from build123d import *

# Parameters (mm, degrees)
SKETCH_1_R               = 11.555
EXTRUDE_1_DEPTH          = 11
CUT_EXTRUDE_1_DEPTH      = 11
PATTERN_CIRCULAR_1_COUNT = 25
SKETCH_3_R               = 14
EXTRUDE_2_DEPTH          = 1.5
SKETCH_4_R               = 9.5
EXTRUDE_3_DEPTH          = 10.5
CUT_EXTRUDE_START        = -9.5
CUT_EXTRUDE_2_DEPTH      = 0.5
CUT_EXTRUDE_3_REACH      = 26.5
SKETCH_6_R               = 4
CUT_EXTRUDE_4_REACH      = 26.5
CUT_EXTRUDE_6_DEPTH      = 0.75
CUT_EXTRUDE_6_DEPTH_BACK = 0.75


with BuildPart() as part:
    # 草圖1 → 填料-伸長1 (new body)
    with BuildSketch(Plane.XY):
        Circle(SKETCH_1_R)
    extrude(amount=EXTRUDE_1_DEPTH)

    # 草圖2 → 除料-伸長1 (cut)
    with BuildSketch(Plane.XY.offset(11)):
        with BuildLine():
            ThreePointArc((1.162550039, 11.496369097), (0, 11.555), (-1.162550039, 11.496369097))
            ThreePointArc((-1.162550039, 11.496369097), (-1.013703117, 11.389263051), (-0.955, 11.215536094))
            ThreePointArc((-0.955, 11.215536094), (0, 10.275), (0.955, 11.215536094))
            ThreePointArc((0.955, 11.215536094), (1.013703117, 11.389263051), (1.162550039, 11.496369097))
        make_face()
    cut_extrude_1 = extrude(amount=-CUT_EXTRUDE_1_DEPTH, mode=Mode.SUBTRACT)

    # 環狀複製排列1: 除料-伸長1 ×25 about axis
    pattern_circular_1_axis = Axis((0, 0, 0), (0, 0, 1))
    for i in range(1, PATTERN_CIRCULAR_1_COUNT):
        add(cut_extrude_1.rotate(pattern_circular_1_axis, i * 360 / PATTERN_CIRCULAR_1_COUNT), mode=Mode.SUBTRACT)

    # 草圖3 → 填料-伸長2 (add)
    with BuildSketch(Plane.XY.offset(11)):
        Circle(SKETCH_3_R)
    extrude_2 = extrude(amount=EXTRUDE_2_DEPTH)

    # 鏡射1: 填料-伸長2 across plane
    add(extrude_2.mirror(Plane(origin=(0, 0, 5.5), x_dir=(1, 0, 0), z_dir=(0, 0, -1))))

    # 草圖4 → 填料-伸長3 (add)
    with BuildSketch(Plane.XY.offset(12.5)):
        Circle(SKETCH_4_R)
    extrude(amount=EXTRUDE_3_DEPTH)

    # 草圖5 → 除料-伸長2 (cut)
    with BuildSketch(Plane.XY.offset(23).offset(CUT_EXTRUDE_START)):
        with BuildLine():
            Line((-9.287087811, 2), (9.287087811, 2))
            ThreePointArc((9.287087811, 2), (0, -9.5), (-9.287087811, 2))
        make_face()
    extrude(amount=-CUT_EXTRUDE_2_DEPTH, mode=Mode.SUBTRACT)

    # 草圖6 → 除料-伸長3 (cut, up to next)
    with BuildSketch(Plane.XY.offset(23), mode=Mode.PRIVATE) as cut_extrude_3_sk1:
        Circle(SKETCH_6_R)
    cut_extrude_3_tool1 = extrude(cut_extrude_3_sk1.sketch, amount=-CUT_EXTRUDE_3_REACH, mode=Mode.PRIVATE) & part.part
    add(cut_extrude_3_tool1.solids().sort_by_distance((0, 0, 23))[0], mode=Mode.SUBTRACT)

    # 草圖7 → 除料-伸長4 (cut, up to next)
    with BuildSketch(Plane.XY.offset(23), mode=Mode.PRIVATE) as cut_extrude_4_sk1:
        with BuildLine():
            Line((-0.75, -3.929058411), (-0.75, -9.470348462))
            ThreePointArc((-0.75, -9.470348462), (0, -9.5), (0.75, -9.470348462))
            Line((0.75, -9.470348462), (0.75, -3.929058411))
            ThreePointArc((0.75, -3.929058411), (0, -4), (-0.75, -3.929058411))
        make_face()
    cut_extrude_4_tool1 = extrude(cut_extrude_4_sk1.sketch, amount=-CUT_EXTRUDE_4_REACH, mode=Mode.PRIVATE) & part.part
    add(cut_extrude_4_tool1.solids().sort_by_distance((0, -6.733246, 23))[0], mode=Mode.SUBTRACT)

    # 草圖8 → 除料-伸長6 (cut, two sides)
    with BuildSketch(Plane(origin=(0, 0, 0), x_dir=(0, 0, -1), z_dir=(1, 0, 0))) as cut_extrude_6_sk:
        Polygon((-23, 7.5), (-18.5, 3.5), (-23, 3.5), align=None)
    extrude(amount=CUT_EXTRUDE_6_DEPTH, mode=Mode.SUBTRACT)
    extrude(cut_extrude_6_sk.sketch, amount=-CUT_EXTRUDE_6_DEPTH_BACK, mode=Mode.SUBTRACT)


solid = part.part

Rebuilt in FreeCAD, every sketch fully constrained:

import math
import FreeCAD as App
import Part
import Sketcher
from FreeCAD import Vector
Q = App.Units.Quantity

doc = App.newDocument("Part")
body = doc.addObject("PartDesign::Body", "Body")

# Sketch on XY plane
sketch1 = body.newObject("Sketcher::SketchObject", "Sketch")
sketch1.AttachmentSupport = (doc.getObject("XY_Plane"), [""])
sketch1.MapMode = "FlatFace"
sketch1.addGeometry(Part.Circle(Vector(0, 0, 0), Vector(0, 0, 1), 12), False)
sketch1.addConstraint(Sketcher.Constraint("Coincident", 0, 3, -1, 1))
sketch1.addConstraint(Sketcher.Constraint("Diameter", 0, Q("23.11 mm")))
pad1 = body.newObject("PartDesign::Pad", "Pad")
pad1.Profile = sketch1
pad1.Length = 11

# Sketch on XY plane
sketch2 = body.newObject("Sketcher::SketchObject", "Sketch001")
sketch2.AttachmentSupport = (doc.getObject("XY_Plane"), [""])
sketch2.MapMode = "FlatFace"
sketch2.AttachmentOffset = App.Placement(Vector(0, 0, 11), App.Rotation())
sketch2.addGeometry(Part.ArcOfCircle(Part.Circle(Vector(0, 0, 0), Vector(0, 0, 1), 11.56), math.radians(84.23), math.radians(95.77)), False)
sketch2.addGeometry(Part.ArcOfCircle(Part.Circle(Vector(-1.25, 11.21, 0), Vector(0, 0, 1), 0.3), math.radians(1), math.radians(72)), False)
sketch2.addGeometry(Part.ArcOfCircle(Part.Circle(Vector(0, 11.23, 0), Vector(0, 0, 1), 0.96), math.radians(-179), math.radians(-1)), False)
sketch2.addGeometry(Part.ArcOfCircle(Part.Circle(Vector(1.25, 11.21, 0), Vector(0, 0, 1), 0.3), math.radians(108), math.radians(179)), False)
sketch2.addConstraint(Sketcher.Constraint("Coincident", 0, 2, 1, 2))
sketch2.addConstraint(Sketcher.Constraint("Tangent", 1, 1, 2, 1))
sketch2.addConstraint(Sketcher.Constraint("Tangent", 2, 2, 3, 2))
sketch2.addConstraint(Sketcher.Constraint("Coincident", 3, 1, 0, 1))
sketch2.addConstraint(Sketcher.Constraint("Coincident", 0, 3, -1, 1))
sketch2.addConstraint(Sketcher.Constraint("Equal", 1, 3))
sketch2.addConstraint(Sketcher.Constraint("Symmetric", 1, 3, 3, 3, -2))
sketch2.addConstraint(Sketcher.Constraint("Radius", 1, Q("0.3 mm")))
sketch2.addConstraint(Sketcher.Constraint("Radius", 0, Q("11.555 mm")))
sketch2.addConstraint(Sketcher.Constraint("Radius", 2, Q("0.955111 mm")))
sketch2.addConstraint(Sketcher.Constraint("DistanceX", 1, 1, 2, 2, Q("1.91 mm")))
sketch2.addConstraint(Sketcher.Constraint("DistanceX", 0, 2, 3, 1, Q("2.3251 mm")))
pocket1 = body.newObject("PartDesign::Pocket", "Pocket")
pocket1.Profile = sketch2
pocket1.Length = 11
doc.recompute()

polarpattern = body.newObject("PartDesign::PolarPattern", "PolarPattern")
polarpattern.Originals = [pocket1]
polarpattern.Axis = (doc.getObject("Z_Axis"), [""])
polarpattern.Angle = 360
polarpattern.Occurrences = 25
body.Tip = polarpattern

# Sketch on XY plane
sketch3 = body.newObject("Sketcher::SketchObject", "Sketch002")
sketch3.AttachmentSupport = (doc.getObject("XY_Plane"), [""])
sketch3.MapMode = "FlatFace"
sketch3.AttachmentOffset = App.Placement(Vector(0, 0, 11), App.Rotation())
sketch3.addGeometry(Part.Circle(Vector(0, 0, 0), Vector(0, 0, 1), 14), False)
sketch3.addConstraint(Sketcher.Constraint("Coincident", 0, 3, -1, 1))
sketch3.addConstraint(Sketcher.Constraint("Diameter", 0, Q("28 mm")))
pad2 = body.newObject("PartDesign::Pad", "Pad001")
pad2.Profile = sketch3
pad2.Length = 1.5
doc.recompute()

datumplane = body.newObject("PartDesign::Plane", "DatumPlane")
datumplane.AttachmentSupport = (doc.getObject("XY_Plane"), [""])
datumplane.MapMode = "FlatFace"
datumplane.AttachmentOffset = App.Placement(Vector(0, 0, 5.5), App.Rotation())
mirrored = body.newObject("PartDesign::Mirrored", "Mirrored")
mirrored.Originals = [pad2]
mirrored.MirrorPlane = (datumplane, [""])
body.Tip = mirrored

# Sketch on XY plane
sketch4 = body.newObject("Sketcher::SketchObject", "Sketch003")
sketch4.AttachmentSupport = (doc.getObject("XY_Plane"), [""])
sketch4.MapMode = "FlatFace"
sketch4.AttachmentOffset = App.Placement(Vector(0, 0, 12.5), App.Rotation())
sketch4.addGeometry(Part.Circle(Vector(0, 0, 0), Vector(0, 0, 1), 10), False)
sketch4.addConstraint(Sketcher.Constraint("Coincident", 0, 3, -1, 1))
sketch4.addConstraint(Sketcher.Constraint("Diameter", 0, Q("19 mm")))
pad3 = body.newObject("PartDesign::Pad", "Pad002")
pad3.Profile = sketch4
pad3.Length = 10.5

# Sketch on XY plane
sketch5 = body.newObject("Sketcher::SketchObject", "Sketch004")
sketch5.AttachmentSupport = (doc.getObject("XY_Plane"), [""])
sketch5.MapMode = "FlatFace"
sketch5.AttachmentOffset = App.Placement(Vector(0, 0, 13.5), App.Rotation())
sketch5.addGeometry(Part.LineSegment(Vector(9, 2, 0), Vector(-9, 2, 0)), False)
sketch5.addGeometry(Part.ArcOfCircle(Part.Circle(Vector(0, 0, 0), Vector(0, 0, 1), 10), math.radians(168), math.radians(372)), False)
sketch5.addConstraint(Sketcher.Constraint("Coincident", 0, 1, 1, 2))
sketch5.addConstraint(Sketcher.Constraint("Coincident", 1, 1, 0, 2))
sketch5.addConstraint(Sketcher.Constraint("Horizontal", 0))
sketch5.addConstraint(Sketcher.Constraint("Coincident", 1, 3, -1, 1))
sketch5.addConstraint(Sketcher.Constraint("Radius", 1, Q("9.5 mm")))
sketch5.addConstraint(Sketcher.Constraint("DistanceY", -1, 1, 0, 1, Q("2 mm")))
pocket2 = body.newObject("PartDesign::Pocket", "Pocket001")
pocket2.Profile = sketch5
pocket2.Length = 0.5

# Sketch on XY plane
sketch6 = body.newObject("Sketcher::SketchObject", "Sketch005")
sketch6.AttachmentSupport = (doc.getObject("XY_Plane"), [""])
sketch6.MapMode = "FlatFace"
sketch6.AttachmentOffset = App.Placement(Vector(0, 0, 23), App.Rotation())
sketch6.addGeometry(Part.Circle(Vector(0, 0, 0), Vector(0, 0, 1), 4), False)
sketch6.addConstraint(Sketcher.Constraint("Coincident", 0, 3, -1, 1))
sketch6.addConstraint(Sketcher.Constraint("Diameter", 0, Q("8 mm")))
pocket3 = body.newObject("PartDesign::Pocket", "Pocket002")
pocket3.Profile = sketch6
pocket3.Length = 24.5

# Sketch on XY plane
sketch7 = body.newObject("Sketcher::SketchObject", "Sketch006")
sketch7.AttachmentSupport = (doc.getObject("XY_Plane"), [""])
sketch7.MapMode = "FlatFace"
sketch7.AttachmentOffset = App.Placement(Vector(0, 0, 23), App.Rotation())
sketch7.addGeometry(Part.LineSegment(Vector(-0.8, -3.9, 0), Vector(-0.8, -9.5, 0)), False)
sketch7.addGeometry(Part.ArcOfCircle(Part.Circle(Vector(0, 0, 0), Vector(0, 0, 1), 9.5), math.radians(-94.53), math.radians(-85.47)), False)
sketch7.addGeometry(Part.LineSegment(Vector(0.8, -9.5, 0), Vector(0.8, -3.9, 0)), False)
sketch7.addGeometry(Part.ArcOfCircle(Part.Circle(Vector(0, 0, 0), Vector(0, 0, 1), 4), math.radians(-101), math.radians(-79)), False)
sketch7.addConstraint(Sketcher.Constraint("Coincident", 0, 2, 1, 1))
sketch7.addConstraint(Sketcher.Constraint("Coincident", 1, 2, 2, 1))
sketch7.addConstraint(Sketcher.Constraint("Coincident", 2, 2, 3, 2))
sketch7.addConstraint(Sketcher.Constraint("Coincident", 3, 1, 0, 1))
sketch7.addConstraint(Sketcher.Constraint("Vertical", 0))
sketch7.addConstraint(Sketcher.Constraint("Vertical", 2))
sketch7.addConstraint(Sketcher.Constraint("Coincident", 1, 3, -1, 1))
sketch7.addConstraint(Sketcher.Constraint("Coincident", 3, 3, -1, 1))
sketch7.addConstraint(Sketcher.Constraint("Horizontal", 0, 2, 1, 2))
sketch7.addConstraint(Sketcher.Constraint("Radius", 3, Q("4 mm")))
sketch7.addConstraint(Sketcher.Constraint("Radius", 1, Q("9.5 mm")))
sketch7.addConstraint(Sketcher.Constraint("DistanceX", 0, 2, 1, 2, Q("1.5 mm")))
pocket4 = body.newObject("PartDesign::Pocket", "Pocket003")
pocket4.Profile = sketch7
pocket4.Type = "UpToFirst"

# Sketch on YZ plane
sketch8 = body.newObject("Sketcher::SketchObject", "Sketch007")
sketch8.AttachmentSupport = (doc.getObject("YZ_Plane"), [""])
sketch8.MapMode = "FlatFace"
sketch8.addGeometry(Part.LineSegment(Vector(3.5, 18.5, 0), Vector(7.5, 23, 0)), False)
sketch8.addGeometry(Part.LineSegment(Vector(7.5, 23, 0), Vector(3.5, 23, 0)), False)
sketch8.addGeometry(Part.LineSegment(Vector(3.5, 23, 0), Vector(3.5, 18.5, 0)), False)
sketch8.addConstraint(Sketcher.Constraint("Coincident", 0, 2, 1, 1))
sketch8.addConstraint(Sketcher.Constraint("Coincident", 1, 2, 2, 1))
sketch8.addConstraint(Sketcher.Constraint("Coincident", 2, 2, 0, 1))
sketch8.addConstraint(Sketcher.Constraint("Horizontal", 1))
sketch8.addConstraint(Sketcher.Constraint("Vertical", 2))
sketch8.addConstraint(Sketcher.Constraint("DistanceX", 1, 2, 1, 1, Q("4 mm")))
sketch8.addConstraint(Sketcher.Constraint("DistanceY", 2, 2, 2, 1, Q("4.5 mm")))
sketch8.addConstraint(Sketcher.Constraint("DistanceY", -1, 1, 0, 2, Q("23 mm")))
sketch8.addConstraint(Sketcher.Constraint("DistanceX", -1, 1, 0, 2, Q("7.5 mm")))
pocket5 = body.newObject("PartDesign::Pocket", "Pocket004")
pocket5.Profile = sketch8
pocket5.Type = "TwoLengths"
pocket5.Length = 0.75
pocket5.Length2 = 0.75
pocket5.Reversed = True

doc.recompute()
